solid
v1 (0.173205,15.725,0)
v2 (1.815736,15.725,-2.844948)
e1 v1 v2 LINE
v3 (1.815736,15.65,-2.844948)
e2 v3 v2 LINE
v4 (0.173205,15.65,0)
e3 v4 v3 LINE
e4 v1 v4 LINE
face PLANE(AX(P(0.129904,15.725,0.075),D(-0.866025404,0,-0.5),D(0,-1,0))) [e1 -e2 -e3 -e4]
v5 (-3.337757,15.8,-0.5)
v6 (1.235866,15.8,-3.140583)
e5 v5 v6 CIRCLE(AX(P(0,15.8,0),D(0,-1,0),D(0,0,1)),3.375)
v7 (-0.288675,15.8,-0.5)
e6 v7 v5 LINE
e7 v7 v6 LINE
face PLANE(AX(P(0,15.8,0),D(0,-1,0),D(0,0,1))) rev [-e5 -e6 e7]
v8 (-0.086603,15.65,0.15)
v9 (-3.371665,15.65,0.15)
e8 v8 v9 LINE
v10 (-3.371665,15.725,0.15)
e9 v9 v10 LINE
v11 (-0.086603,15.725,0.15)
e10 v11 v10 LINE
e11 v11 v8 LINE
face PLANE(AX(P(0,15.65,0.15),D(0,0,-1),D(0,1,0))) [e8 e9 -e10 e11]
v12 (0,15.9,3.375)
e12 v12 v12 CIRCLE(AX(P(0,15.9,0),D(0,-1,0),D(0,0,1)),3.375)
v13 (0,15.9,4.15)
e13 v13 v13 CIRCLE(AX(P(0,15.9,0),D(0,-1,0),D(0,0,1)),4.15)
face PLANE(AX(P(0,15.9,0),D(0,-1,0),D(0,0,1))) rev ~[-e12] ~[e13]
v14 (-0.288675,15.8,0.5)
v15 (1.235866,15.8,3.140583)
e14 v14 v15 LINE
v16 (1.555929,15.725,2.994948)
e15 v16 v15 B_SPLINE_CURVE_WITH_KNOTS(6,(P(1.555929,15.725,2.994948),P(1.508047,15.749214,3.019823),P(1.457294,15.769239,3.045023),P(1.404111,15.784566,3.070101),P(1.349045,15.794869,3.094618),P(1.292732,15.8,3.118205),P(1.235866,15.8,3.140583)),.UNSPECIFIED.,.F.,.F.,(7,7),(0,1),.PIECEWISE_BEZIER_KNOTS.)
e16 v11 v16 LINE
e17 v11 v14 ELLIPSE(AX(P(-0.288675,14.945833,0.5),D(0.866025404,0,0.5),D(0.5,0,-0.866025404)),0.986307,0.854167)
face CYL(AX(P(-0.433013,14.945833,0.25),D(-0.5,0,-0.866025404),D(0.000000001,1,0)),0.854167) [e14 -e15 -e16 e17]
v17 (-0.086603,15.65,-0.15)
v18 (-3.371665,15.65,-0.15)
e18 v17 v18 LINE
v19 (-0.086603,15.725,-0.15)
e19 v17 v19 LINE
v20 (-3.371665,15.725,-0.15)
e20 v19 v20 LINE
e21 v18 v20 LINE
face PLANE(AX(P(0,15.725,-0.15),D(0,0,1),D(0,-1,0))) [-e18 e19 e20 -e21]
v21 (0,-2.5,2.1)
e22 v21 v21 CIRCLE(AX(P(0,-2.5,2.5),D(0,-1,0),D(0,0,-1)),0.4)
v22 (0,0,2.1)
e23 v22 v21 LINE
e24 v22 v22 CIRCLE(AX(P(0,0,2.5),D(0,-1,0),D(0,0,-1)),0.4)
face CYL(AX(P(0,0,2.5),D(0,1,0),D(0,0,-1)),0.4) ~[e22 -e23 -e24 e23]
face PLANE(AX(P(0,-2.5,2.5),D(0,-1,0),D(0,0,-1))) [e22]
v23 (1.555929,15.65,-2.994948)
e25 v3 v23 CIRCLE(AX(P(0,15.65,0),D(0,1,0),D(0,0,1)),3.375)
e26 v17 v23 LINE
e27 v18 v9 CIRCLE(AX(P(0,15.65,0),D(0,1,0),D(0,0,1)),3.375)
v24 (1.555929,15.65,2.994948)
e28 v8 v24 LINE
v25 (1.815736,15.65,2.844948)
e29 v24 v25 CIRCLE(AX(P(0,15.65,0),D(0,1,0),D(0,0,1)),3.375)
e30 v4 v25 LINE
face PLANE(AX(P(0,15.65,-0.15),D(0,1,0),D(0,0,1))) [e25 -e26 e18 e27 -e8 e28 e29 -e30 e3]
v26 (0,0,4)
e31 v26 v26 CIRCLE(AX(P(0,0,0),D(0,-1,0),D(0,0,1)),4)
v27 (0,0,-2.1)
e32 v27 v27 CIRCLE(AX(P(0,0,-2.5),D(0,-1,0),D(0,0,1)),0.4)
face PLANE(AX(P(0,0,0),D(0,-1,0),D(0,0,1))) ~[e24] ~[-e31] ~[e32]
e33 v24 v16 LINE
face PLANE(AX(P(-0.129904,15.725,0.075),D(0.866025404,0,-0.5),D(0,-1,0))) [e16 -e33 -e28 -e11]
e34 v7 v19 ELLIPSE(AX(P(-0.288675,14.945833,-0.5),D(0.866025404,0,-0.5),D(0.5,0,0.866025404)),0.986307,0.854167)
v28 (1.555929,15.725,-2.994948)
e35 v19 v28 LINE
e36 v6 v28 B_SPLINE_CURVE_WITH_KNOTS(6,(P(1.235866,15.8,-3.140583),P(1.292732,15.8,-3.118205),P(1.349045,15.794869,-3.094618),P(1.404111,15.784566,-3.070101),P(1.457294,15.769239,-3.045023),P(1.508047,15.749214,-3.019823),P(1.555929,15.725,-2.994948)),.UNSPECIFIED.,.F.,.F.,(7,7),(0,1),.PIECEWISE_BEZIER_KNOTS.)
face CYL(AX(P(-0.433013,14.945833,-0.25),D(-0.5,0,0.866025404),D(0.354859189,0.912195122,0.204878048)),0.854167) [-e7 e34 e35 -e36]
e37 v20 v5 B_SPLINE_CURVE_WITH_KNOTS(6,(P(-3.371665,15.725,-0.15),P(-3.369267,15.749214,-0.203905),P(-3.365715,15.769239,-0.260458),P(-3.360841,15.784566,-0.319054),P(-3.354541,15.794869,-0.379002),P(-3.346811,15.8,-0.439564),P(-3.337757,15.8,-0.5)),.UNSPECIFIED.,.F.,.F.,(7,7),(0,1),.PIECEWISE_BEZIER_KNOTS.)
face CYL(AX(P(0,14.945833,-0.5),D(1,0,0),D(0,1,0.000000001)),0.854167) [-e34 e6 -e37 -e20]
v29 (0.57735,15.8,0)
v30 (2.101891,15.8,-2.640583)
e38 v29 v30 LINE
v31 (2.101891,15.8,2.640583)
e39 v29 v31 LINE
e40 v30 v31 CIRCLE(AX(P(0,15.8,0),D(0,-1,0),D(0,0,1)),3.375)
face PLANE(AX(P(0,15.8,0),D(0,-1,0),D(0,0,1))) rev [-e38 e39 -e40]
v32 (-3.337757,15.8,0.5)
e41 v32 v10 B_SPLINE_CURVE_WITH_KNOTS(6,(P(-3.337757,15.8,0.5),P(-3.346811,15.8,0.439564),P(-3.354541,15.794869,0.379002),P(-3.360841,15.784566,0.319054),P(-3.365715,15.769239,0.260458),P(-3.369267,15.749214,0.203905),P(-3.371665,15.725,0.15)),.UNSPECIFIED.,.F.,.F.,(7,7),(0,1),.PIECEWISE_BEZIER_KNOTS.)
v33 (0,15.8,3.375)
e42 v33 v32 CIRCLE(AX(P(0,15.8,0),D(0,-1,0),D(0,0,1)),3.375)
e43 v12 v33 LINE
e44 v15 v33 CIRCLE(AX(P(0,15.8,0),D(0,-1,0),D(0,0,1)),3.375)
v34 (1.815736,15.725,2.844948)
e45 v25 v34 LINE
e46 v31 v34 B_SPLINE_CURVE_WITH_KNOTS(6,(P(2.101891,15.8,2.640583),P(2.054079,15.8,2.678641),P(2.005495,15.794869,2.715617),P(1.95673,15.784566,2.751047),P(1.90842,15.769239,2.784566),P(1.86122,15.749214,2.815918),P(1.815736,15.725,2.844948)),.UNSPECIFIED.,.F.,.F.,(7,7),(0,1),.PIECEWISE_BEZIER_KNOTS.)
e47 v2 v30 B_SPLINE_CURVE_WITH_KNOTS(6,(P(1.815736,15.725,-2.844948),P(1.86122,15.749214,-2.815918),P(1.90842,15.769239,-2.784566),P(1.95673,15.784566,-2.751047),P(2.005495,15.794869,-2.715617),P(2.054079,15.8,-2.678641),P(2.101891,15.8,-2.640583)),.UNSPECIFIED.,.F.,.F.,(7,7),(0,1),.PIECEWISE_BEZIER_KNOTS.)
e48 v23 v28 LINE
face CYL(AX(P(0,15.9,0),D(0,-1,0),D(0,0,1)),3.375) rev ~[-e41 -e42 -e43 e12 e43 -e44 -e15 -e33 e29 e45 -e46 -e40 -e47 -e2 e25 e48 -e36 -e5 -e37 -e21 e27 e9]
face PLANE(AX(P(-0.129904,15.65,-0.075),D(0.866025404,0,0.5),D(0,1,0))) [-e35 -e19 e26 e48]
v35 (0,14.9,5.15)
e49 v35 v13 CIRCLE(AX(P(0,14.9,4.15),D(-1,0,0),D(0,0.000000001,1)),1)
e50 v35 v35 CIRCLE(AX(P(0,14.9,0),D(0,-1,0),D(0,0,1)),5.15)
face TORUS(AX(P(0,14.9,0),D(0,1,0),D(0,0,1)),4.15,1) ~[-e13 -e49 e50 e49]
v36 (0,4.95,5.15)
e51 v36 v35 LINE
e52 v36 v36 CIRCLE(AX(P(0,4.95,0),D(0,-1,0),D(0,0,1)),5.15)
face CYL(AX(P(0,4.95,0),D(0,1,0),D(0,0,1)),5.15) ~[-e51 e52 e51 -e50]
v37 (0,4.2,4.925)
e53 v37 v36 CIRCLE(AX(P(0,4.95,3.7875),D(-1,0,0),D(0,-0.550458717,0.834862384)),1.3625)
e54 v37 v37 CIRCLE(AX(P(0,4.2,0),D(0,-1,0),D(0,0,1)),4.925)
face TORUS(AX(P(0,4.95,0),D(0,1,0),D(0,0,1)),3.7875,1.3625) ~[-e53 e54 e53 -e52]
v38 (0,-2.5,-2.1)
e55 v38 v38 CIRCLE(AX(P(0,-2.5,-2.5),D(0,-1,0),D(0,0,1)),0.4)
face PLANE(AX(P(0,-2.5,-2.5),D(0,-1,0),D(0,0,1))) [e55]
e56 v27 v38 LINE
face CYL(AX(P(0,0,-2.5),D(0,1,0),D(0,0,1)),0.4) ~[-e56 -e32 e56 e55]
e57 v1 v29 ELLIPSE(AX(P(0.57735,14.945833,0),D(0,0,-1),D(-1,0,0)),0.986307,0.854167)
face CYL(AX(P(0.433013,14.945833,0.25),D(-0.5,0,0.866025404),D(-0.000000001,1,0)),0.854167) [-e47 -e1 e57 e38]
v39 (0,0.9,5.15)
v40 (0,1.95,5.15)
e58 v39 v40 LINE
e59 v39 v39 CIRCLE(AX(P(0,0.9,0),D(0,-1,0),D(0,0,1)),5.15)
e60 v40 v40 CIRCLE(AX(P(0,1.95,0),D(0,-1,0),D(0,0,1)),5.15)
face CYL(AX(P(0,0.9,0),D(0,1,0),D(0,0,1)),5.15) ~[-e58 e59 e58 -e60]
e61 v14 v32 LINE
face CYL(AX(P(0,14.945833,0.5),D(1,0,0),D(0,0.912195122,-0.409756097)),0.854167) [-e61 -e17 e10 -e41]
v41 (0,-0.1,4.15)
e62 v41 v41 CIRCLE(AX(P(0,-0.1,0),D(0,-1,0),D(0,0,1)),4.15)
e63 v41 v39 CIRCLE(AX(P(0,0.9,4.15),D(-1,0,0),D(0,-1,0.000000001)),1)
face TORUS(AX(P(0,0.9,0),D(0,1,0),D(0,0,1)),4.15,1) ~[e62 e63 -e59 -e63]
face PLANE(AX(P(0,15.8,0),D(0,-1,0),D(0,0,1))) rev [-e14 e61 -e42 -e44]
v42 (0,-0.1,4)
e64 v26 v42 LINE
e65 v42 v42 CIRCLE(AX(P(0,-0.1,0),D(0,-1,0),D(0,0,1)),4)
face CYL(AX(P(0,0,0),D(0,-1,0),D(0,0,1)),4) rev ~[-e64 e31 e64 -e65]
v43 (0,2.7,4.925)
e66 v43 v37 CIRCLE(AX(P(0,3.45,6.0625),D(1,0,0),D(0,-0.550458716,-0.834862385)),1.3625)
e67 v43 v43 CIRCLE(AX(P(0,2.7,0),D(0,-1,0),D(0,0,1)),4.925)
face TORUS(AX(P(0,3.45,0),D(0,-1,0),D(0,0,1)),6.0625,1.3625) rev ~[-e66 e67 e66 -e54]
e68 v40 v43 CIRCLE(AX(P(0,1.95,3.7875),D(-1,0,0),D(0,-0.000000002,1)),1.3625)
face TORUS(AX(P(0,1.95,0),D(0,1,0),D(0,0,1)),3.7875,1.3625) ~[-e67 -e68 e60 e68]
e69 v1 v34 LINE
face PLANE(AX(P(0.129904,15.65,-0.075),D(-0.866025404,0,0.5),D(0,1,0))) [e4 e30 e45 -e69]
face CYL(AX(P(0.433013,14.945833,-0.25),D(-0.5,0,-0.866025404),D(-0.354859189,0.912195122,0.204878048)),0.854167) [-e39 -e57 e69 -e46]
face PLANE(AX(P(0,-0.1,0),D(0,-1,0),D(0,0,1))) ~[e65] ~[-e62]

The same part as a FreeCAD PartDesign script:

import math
import FreeCAD as App
import Part
import Sketcher
from FreeCAD import Vector
Q = App.Units.Quantity


def add_polygon(sketch, points):
    """Adds a closed chain of lines whose ends are joined by coincident constraints."""
    first, n = sketch.GeometryCount, len(points)
    for a, b in zip(points, points[1:] + points[:1]):
        sketch.addGeometry(Part.LineSegment(App.Vector(*a, 0), App.Vector(*b, 0)), False)
    for i in range(n):
        sketch.addConstraint(Sketcher.Constraint("Coincident", first + i, 2, first + (i + 1) % n, 1))

doc = App.newDocument("Part")
body = doc.addObject("PartDesign::Body", "Body")

sketch1 = body.newObject("Sketcher::SketchObject", "Sketch")
sketch1.AttachmentSupport = (doc.getObject("YZ_Plane"), [""])
sketch1.MapMode = "FlatFace"
add_polygon(sketch1, [(15.8, 0), (14.8, 0), (14.8, -3.4), (15.8, -3.4)])
sketch1.addConstraint([
    Sketcher.Constraint("Horizontal", 0),
    Sketcher.Constraint("Vertical", 1),
    Sketcher.Constraint("Horizontal", 2),
    Sketcher.Constraint("Vertical", 3),
    Sketcher.Constraint("PointOnObject", 0, 2, -1),
    Sketcher.Constraint("DistanceX", 0, 2, 0, 1, Q("1 mm")),
    Sketcher.Constraint("DistanceX", -1, 1, 0, 2, Q("14.8 mm")),
    Sketcher.Constraint("DistanceY", 1, 2, 1, 1, Q("3.375 mm")),
])
revolution = body.newObject("PartDesign::Revolution", "Revolution")
revolution.Profile = sketch1
revolution.ReferenceAxis = (sketch1, ["H_Axis"])
revolution.Angle = 360

sketch2 = body.newObject("Sketcher::SketchObject", "Sketch001")
sketch2.AttachmentSupport = (doc.getObject("YZ_Plane"), [""])
sketch2.MapMode = "FlatFace"
sketch2.addGeometry([
    Part.LineSegment(Vector(15.8, -0.5, 0), Vector(15.8, 0.5, 0)),
    Part.ArcOfCircle(Part.Circle(Vector(14.95, 0.5, 0), Vector(0, 0, 1), 0.85), math.radians(-24), math.radians(0)),
    Part.LineSegment(Vector(15.72, 0.15, 0), Vector(15.65, 0.15, 0)),
    Part.LineSegment(Vector(15.65, 0.15, 0), Vector(15.65, -0.15, 0)),
    Part.LineSegment(Vector(15.65, -0.15, 0), Vector(15.72, -0.15, 0)),
    Part.ArcOfCircle(Part.Circle(Vector(14.95, -0.5, 0), Vector(0, 0, 1), 0.85), math.radians(0), math.radians(24)),
], False)
sketch2.addConstraint([
    Sketcher.Constraint("Tangent", 0, 2, 1, 2),
    Sketcher.Constraint("Coincident", 1, 1, 2, 1),
    Sketcher.Constraint("Coincident", 2, 2, 3, 1),
    Sketcher.Constraint("Coincident", 3, 2, 4, 1),
    Sketcher.Constraint("Coincident", 4, 2, 5, 2),
    Sketcher.Constraint("Tangent", 5, 1, 0, 1),
    Sketcher.Constraint("Vertical", 0),
    Sketcher.Constraint("Horizontal", 2),
    Sketcher.Constraint("Vertical", 3),
    Sketcher.Constraint("Horizontal", 4),
    Sketcher.Constraint("Equal", 1, 5),
    Sketcher.Constraint("Symmetric", 1, 1, 4, 2, -1),
    Sketcher.Constraint("DistanceY", 0, 1, 0, 2, Q("1 mm")),
    Sketcher.Constraint("DistanceY", 3, 2, 3, 1, Q("0.3 mm")),
    Sketcher.Constraint("DistanceX", -1, 1, 0, 2, Q("15.8 mm")),
    Sketcher.Constraint("DistanceX", 2, 2, 2, 1, Q("0.075 mm")),
    Sketcher.Constraint("DistanceX", -1, 1, 2, 2, Q("15.65 mm")),
])
pocket1 = body.newObject("PartDesign::Pocket", "Pocket")
pocket1.Profile = sketch2
pocket1.Type = "ThroughAll"
doc.recompute()

polarpattern = body.newObject("PartDesign::PolarPattern", "PolarPattern")
polarpattern.Originals = [pocket1]
polarpattern.Axis = (doc.getObject("Y_Axis"), [""])
polarpattern.Angle = 360
polarpattern.Occurrences = 3
body.Tip = polarpattern

sketch3 = body.newObject("Sketcher::SketchObject", "Sketch002")
sketch3.AttachmentSupport = (doc.getObject("YZ_Plane"), [""])
sketch3.MapMode = "FlatFace"
sketch3.addGeometry([
    Part.LineSegment(Vector(15.9, -3.38, 0), Vector(14.8, -3.38, 0)),
    Part.LineSegment(Vector(14.8, -3.38, 0), Vector(14.8, 0, 0)),
    Part.LineSegment(Vector(14.8, 0, 0), Vector(0, 0, 0)),
    Part.LineSegment(Vector(0, 0, 0), Vector(0, -4, 0)),
    Part.LineSegment(Vector(0, -4, 0), Vector(-0.1, -4, 0)),
    Part.LineSegment(Vector(-0.1, -4, 0), Vector(-0.1, -4.15, 0)),
    Part.ArcOfCircle(Part.Circle(Vector(0.9, -4.15, 0), Vector(0, 0, 1), 1), math.radians(-180), math.radians(-90)),
    Part.LineSegment(Vector(0.9, -5.15, 0), Vector(1.95, -5.15, 0)),
    Part.ArcOfCircle(Part.Circle(Vector(1.95, -3.79, 0), Vector(0, 0, 1), 1.36), math.radians(-90), math.radians(-57)),
    Part.ArcOfCircle(Part.Circle(Vector(3.45, -6.06, 0), Vector(0, 0, 1), 1.36), math.radians(57), math.radians(123)),
    Part.ArcOfCircle(Part.Circle(Vector(4.95, -3.79, 0), Vector(0, 0, 1), 1.36), math.radians(-123), math.radians(-90)),
    Part.LineSegment(Vector(4.95, -5.15, 0), Vector(14.9, -5.15, 0)),
    Part.ArcOfCircle(Part.Circle(Vector(14.9, -4.15, 0), Vector(0, 0, 1), 1), math.radians(-90), math.radians(0)),
    Part.LineSegment(Vector(15.9, -4.15, 0), Vector(15.9, -3.38, 0)),
], False)
sketch3.addConstraint([
    Sketcher.Constraint("Coincident", 0, 2, 1, 1),
    Sketcher.Constraint("Coincident", 1, 2, 2, 1),
    Sketcher.Constraint("Coincident", 2, 2, 3, 1),
    Sketcher.Constraint("Coincident", 3, 2, 4, 1),
    Sketcher.Constraint("Coincident", 4, 2, 5, 1),
    Sketcher.Constraint("Tangent", 5, 2, 6, 1),
    Sketcher.Constraint("Tangent", 6, 2, 7, 1),
    Sketcher.Constraint("Tangent", 7, 2, 8, 1),
    Sketcher.Constraint("Tangent", 8, 2, 9, 2),
    Sketcher.Constraint("Tangent", 9, 1, 10, 1),
    Sketcher.Constraint("Tangent", 10, 2, 11, 1),
    Sketcher.Constraint("Tangent", 11, 2, 12, 1),
    Sketcher.Constraint("Tangent", 12, 2, 13, 1),
    Sketcher.Constraint("Coincident", 13, 2, 0, 1),
    Sketcher.Constraint("Horizontal", 0),
    Sketcher.Constraint("Vertical", 1),
    Sketcher.Constraint("Horizontal", 2),
    Sketcher.Constraint("Vertical", 3),
    Sketcher.Constraint("Horizontal", 4),
    Sketcher.Constraint("Vertical", 5),
    Sketcher.Constraint("Horizontal", 7),
    Sketcher.Constraint("Horizontal", 11),
    Sketcher.Constraint("Vertical", 13),
    Sketcher.Constraint("Coincident", 2, 2, -1, 1),
    Sketcher.Constraint("Equal", 8, 9),
    Sketcher.Constraint("Equal", 9, 10),
    Sketcher.Constraint("Equal", 6, 12),
    Sketcher.Constraint("Horizontal", 8, 3, 10, 3),
    Sketcher.Constraint("Radius", 6, Q("1 mm")),
    Sketcher.Constraint("DistanceY", 3, 2, 3, 1, Q("4 mm")),
    Sketcher.Constraint("DistanceX", 0, 2, 0, 1, Q("1.1 mm")),
    Sketcher.Constraint("DistanceX", 2, 2, 2, 1, Q("14.8 mm")),
    Sketcher.Constraint("DistanceX", 4, 2, 4, 1, Q("0.1 mm")),
    Sketcher.Constraint("DistanceX", 8, 3, 10, 3, Q("3 mm")),
    Sketcher.Constraint("DistanceX", 7, 1, 7, 2, Q("1.05 mm")),
    Sketcher.Constraint("DistanceY", 5, 2, 5, 1, Q("0.15 mm")),
    Sketcher.Constraint("Radius", 8, Q("1.3625 mm")),
    Sketcher.Constraint("DistanceY", 1, 1, 1, 2, Q("3.375 mm")),
])
revolution2 = body.newObject("PartDesign::Revolution", "Revolution001")
revolution2.Profile = sketch3
revolution2.ReferenceAxis = (sketch3, ["H_Axis"])
revolution2.Angle = 360

sketch4 = body.newObject("Sketcher::SketchObject", "Sketch003")
sketch4.AttachmentSupport = (doc.getObject("XZ_Plane"), [""])
sketch4.MapMode = "FlatFace"
sketch4.addGeometry([
    Part.Circle(Vector(0, 2.5, 0), Vector(0, 0, 1), 0.4),
    Part.Circle(Vector(0, -2.5, 0), Vector(0, 0, 1), 0.4),
], False)
sketch4.addConstraint([
    Sketcher.Constraint("Equal", 0, 1),
    Sketcher.Constraint("Symmetric", 0, 3, 1, 3, -1, 1),
    Sketcher.Constraint("PointOnObject", 0, 3, -2),
    Sketcher.Constraint("Diameter", 0, Q("0.8 mm")),
    Sketcher.Constraint("DistanceY", 1, 3, 0, 3, Q("5 mm")),
])
pad1 = body.newObject("PartDesign::Pad", "Pad")
pad1.Profile = sketch4
pad1.Length = 2.5

doc.recompute()
